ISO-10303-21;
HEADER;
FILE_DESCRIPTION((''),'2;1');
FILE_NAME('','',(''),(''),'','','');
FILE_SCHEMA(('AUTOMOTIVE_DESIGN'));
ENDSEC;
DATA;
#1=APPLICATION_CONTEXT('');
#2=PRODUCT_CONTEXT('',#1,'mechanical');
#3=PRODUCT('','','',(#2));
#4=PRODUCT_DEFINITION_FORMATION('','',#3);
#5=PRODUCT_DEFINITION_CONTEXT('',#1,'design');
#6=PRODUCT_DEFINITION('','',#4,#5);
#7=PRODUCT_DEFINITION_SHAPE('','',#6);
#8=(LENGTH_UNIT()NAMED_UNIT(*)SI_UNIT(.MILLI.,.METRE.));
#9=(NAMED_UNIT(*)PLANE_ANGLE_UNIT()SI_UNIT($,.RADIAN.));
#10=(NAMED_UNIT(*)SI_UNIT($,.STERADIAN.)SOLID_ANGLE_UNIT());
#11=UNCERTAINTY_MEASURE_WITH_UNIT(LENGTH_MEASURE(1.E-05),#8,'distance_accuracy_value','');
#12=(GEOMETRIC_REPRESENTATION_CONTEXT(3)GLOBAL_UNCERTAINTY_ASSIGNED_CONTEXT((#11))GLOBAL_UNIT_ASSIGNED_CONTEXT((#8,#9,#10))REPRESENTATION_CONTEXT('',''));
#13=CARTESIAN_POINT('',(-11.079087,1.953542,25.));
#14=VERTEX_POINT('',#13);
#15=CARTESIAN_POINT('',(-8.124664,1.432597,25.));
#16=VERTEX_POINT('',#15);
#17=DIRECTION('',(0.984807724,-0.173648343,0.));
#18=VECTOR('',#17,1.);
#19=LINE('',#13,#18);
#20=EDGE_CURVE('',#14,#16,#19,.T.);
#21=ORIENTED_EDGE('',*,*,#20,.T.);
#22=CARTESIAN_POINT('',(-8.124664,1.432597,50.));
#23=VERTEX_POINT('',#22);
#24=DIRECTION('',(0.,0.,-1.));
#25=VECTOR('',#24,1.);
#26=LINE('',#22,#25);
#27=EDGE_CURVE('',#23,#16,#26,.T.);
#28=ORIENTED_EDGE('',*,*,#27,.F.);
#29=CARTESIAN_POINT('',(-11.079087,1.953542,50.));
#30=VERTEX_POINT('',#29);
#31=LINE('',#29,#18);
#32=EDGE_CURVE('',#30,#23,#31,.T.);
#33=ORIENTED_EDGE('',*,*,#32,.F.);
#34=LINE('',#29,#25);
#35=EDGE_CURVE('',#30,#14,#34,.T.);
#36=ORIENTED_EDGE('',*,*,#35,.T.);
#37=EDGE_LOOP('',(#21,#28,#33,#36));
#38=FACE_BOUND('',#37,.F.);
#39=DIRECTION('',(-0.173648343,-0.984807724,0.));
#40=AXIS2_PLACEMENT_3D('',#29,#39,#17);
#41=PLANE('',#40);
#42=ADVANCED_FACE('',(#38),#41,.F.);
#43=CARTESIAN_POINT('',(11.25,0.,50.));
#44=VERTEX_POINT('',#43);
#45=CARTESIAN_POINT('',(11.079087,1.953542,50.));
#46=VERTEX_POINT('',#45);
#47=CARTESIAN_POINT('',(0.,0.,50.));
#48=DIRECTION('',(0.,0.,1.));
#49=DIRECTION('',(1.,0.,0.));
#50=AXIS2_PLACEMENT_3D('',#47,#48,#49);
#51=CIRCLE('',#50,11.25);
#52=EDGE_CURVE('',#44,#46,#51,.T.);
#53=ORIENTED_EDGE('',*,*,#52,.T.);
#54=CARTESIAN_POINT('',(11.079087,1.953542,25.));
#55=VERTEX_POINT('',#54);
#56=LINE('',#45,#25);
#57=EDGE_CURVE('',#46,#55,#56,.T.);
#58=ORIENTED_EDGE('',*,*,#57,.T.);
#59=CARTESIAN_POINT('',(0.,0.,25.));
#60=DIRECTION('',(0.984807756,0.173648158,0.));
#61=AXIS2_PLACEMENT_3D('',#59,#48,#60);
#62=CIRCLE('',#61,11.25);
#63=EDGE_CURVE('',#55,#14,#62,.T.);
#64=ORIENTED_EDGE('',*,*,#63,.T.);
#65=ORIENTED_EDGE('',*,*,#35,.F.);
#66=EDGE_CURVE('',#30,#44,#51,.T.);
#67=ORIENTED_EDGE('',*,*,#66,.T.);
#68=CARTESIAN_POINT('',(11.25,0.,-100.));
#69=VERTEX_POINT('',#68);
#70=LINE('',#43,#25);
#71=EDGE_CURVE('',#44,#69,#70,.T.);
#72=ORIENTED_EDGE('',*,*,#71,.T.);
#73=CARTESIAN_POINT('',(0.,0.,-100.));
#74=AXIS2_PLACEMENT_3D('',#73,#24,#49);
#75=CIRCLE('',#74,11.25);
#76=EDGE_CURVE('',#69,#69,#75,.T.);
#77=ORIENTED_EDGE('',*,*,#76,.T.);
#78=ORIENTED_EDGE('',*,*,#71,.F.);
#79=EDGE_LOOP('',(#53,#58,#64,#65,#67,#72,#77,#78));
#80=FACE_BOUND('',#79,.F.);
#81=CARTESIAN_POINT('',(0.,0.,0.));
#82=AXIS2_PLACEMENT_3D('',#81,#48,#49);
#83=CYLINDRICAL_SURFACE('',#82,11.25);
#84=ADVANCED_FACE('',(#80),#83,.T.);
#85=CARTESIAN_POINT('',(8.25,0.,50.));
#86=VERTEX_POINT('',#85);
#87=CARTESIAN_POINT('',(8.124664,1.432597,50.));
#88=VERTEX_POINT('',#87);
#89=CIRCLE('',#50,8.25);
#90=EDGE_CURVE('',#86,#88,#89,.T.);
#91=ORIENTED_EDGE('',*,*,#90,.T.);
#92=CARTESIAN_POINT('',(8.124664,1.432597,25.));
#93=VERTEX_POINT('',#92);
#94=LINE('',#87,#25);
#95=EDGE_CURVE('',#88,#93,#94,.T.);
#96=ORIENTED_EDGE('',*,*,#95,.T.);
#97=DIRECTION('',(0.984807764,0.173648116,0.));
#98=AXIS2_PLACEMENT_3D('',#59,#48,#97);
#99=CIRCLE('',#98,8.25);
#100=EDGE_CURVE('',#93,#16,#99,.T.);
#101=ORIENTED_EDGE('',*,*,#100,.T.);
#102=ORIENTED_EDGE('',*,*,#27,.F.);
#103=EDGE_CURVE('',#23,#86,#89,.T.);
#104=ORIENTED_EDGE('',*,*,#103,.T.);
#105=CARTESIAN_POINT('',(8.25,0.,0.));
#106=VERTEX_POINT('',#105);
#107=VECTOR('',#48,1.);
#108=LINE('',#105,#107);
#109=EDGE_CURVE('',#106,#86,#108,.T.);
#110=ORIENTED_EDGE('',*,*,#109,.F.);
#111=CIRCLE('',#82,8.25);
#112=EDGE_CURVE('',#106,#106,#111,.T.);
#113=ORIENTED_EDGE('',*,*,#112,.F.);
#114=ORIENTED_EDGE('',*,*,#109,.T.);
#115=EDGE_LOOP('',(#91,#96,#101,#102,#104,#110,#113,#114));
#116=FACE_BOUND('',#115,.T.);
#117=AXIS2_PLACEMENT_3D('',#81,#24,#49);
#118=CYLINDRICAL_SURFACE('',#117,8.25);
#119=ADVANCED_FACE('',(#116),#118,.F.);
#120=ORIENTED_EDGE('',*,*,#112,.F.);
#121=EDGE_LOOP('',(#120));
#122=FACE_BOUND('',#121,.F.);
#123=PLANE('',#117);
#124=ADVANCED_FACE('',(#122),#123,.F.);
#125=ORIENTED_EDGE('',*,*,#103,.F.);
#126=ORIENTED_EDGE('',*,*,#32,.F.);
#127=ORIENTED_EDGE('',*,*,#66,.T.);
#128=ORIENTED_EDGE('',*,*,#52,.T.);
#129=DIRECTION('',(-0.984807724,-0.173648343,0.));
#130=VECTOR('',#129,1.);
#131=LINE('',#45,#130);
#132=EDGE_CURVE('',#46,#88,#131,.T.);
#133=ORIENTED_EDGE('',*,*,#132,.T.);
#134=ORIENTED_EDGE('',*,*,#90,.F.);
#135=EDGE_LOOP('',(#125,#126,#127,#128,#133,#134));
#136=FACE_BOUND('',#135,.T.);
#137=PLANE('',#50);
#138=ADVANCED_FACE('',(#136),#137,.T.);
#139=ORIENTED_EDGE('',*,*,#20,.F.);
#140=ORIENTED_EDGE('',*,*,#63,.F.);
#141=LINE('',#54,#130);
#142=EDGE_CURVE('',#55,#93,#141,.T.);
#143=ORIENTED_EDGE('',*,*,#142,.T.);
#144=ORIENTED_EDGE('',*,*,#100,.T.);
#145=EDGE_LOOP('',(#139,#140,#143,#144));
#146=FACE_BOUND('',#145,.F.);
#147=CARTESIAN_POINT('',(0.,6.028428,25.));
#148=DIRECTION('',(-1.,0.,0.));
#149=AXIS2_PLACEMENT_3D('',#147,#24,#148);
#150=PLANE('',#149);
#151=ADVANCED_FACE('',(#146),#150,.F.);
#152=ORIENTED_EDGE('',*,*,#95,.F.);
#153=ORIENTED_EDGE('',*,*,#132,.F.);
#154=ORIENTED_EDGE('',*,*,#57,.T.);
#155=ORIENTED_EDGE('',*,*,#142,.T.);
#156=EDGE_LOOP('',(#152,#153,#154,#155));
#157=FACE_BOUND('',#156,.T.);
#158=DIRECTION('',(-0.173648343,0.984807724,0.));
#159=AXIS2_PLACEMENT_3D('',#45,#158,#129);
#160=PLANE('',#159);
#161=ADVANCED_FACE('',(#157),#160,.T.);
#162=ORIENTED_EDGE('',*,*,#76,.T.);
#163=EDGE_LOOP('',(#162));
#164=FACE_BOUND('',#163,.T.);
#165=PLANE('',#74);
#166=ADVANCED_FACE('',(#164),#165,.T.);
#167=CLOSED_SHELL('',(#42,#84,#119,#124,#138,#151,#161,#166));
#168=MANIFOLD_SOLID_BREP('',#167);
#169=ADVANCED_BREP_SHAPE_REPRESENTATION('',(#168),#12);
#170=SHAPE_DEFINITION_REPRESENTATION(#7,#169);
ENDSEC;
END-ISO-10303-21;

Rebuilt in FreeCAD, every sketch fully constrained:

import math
import FreeCAD as App
import Part
import Sketcher
Q = App.Units.Quantity

doc = App.newDocument("Part")
body = doc.addObject("PartDesign::Body", "Body")

sketch1 = body.newObject("Sketcher::SketchObject", "Sketch")
sketch1.AttachmentSupport = (doc.getObject("XY_Plane"), [""])
sketch1.MapMode = "FlatFace"
sketch1.addGeometry([
    Part.Circle(App.Vector(0, 0, 0), App.Vector(0, 0, 1), 11),
    Part.Circle(App.Vector(0, 0, 0), App.Vector(0, 0, 1), 8),
], False)
sketch1.addConstraint([
    Sketcher.Constraint("Coincident", 0, 3, -1, 1),
    Sketcher.Constraint("Coincident", 1, 3, -1, 1),
    Sketcher.Constraint("Diameter", 0, Q("22.5 mm")),
    Sketcher.Constraint("Diameter", 1, Q("16.5 mm")),
])
pad1 = body.newObject("PartDesign::Pad", "Pad")
pad1.Profile = sketch1
pad1.Length = 50

sketch2 = body.newObject("Sketcher::SketchObject", "Sketch001")
sketch2.AttachmentSupport = (doc.getObject("XY_Plane"), [""])
sketch2.MapMode = "FlatFace"
sketch2.addGeometry(Part.Circle(App.Vector(0, 0, 0), App.Vector(0, 0, 1), 11), False)
sketch2.addConstraint([
    Sketcher.Constraint("Coincident", 0, 3, -1, 1),
    Sketcher.Constraint("Diameter", 0, Q("22.5 mm")),
])
pad2 = body.newObject("PartDesign::Pad", "Pad001")
pad2.Profile = sketch2
pad2.Length = 100
pad2.Reversed = True

sketch3 = body.newObject("Sketcher::SketchObject", "Sketch002")
sketch3.AttachmentSupport = (doc.getObject("XY_Plane"), [""])
sketch3.MapMode = "FlatFace"
sketch3.AttachmentOffset = App.Placement(App.Vector(0, 0, 50), App.Rotation())
sketch3.addGeometry([
    Part.ArcOfCircle(Part.Circle(App.Vector(0, 0, 0), App.Vector(0, 0, 1), 8.2), math.radians(10), math.radians(170)),
    Part.LineSegment(App.Vector(8.1, 1.4, 0), App.Vector(11.1, 2, 0)),
    Part.ArcOfCircle(Part.Circle(App.Vector(0, 0, 0), App.Vector(0, 0, 1), 11.2), math.radians(10), math.radians(170)),
    Part.LineSegment(App.Vector(-11.1, 2, 0), App.Vector(-8.1, 1.4, 0)),
], False)
sketch3.addConstraint([
    Sketcher.Constraint("Coincident", 0, 1, 1, 1),
    Sketcher.Constraint("Coincident", 1, 2, 2, 1),
    Sketcher.Constraint("Coincident", 2, 2, 3, 1),
    Sketcher.Constraint("Coincident", 3, 2, 0, 2),
    Sketcher.Constraint("Coincident", 0, 3, -1, 1),
    Sketcher.Constraint("Coincident", 2, 3, -1, 1),
    Sketcher.Constraint("Horizontal", 1, 2, 2, 2),
    Sketcher.Constraint("Horizontal", 0, 1, 3, 2),
    Sketcher.Constraint("Angle", 1, Q("10.00001 deg")),
    Sketcher.Constraint("Radius", 0, Q("8.25 mm")),
    Sketcher.Constraint("Radius", 2, Q("11.25 mm")),
    Sketcher.Constraint("DistanceY", -1, 1, 1, 2, Q("1.953542 mm")),
])
pocket1 = body.newObject("PartDesign::Pocket", "Pocket")
pocket1.Profile = sketch3
pocket1.Length = 25

doc.recompute()
